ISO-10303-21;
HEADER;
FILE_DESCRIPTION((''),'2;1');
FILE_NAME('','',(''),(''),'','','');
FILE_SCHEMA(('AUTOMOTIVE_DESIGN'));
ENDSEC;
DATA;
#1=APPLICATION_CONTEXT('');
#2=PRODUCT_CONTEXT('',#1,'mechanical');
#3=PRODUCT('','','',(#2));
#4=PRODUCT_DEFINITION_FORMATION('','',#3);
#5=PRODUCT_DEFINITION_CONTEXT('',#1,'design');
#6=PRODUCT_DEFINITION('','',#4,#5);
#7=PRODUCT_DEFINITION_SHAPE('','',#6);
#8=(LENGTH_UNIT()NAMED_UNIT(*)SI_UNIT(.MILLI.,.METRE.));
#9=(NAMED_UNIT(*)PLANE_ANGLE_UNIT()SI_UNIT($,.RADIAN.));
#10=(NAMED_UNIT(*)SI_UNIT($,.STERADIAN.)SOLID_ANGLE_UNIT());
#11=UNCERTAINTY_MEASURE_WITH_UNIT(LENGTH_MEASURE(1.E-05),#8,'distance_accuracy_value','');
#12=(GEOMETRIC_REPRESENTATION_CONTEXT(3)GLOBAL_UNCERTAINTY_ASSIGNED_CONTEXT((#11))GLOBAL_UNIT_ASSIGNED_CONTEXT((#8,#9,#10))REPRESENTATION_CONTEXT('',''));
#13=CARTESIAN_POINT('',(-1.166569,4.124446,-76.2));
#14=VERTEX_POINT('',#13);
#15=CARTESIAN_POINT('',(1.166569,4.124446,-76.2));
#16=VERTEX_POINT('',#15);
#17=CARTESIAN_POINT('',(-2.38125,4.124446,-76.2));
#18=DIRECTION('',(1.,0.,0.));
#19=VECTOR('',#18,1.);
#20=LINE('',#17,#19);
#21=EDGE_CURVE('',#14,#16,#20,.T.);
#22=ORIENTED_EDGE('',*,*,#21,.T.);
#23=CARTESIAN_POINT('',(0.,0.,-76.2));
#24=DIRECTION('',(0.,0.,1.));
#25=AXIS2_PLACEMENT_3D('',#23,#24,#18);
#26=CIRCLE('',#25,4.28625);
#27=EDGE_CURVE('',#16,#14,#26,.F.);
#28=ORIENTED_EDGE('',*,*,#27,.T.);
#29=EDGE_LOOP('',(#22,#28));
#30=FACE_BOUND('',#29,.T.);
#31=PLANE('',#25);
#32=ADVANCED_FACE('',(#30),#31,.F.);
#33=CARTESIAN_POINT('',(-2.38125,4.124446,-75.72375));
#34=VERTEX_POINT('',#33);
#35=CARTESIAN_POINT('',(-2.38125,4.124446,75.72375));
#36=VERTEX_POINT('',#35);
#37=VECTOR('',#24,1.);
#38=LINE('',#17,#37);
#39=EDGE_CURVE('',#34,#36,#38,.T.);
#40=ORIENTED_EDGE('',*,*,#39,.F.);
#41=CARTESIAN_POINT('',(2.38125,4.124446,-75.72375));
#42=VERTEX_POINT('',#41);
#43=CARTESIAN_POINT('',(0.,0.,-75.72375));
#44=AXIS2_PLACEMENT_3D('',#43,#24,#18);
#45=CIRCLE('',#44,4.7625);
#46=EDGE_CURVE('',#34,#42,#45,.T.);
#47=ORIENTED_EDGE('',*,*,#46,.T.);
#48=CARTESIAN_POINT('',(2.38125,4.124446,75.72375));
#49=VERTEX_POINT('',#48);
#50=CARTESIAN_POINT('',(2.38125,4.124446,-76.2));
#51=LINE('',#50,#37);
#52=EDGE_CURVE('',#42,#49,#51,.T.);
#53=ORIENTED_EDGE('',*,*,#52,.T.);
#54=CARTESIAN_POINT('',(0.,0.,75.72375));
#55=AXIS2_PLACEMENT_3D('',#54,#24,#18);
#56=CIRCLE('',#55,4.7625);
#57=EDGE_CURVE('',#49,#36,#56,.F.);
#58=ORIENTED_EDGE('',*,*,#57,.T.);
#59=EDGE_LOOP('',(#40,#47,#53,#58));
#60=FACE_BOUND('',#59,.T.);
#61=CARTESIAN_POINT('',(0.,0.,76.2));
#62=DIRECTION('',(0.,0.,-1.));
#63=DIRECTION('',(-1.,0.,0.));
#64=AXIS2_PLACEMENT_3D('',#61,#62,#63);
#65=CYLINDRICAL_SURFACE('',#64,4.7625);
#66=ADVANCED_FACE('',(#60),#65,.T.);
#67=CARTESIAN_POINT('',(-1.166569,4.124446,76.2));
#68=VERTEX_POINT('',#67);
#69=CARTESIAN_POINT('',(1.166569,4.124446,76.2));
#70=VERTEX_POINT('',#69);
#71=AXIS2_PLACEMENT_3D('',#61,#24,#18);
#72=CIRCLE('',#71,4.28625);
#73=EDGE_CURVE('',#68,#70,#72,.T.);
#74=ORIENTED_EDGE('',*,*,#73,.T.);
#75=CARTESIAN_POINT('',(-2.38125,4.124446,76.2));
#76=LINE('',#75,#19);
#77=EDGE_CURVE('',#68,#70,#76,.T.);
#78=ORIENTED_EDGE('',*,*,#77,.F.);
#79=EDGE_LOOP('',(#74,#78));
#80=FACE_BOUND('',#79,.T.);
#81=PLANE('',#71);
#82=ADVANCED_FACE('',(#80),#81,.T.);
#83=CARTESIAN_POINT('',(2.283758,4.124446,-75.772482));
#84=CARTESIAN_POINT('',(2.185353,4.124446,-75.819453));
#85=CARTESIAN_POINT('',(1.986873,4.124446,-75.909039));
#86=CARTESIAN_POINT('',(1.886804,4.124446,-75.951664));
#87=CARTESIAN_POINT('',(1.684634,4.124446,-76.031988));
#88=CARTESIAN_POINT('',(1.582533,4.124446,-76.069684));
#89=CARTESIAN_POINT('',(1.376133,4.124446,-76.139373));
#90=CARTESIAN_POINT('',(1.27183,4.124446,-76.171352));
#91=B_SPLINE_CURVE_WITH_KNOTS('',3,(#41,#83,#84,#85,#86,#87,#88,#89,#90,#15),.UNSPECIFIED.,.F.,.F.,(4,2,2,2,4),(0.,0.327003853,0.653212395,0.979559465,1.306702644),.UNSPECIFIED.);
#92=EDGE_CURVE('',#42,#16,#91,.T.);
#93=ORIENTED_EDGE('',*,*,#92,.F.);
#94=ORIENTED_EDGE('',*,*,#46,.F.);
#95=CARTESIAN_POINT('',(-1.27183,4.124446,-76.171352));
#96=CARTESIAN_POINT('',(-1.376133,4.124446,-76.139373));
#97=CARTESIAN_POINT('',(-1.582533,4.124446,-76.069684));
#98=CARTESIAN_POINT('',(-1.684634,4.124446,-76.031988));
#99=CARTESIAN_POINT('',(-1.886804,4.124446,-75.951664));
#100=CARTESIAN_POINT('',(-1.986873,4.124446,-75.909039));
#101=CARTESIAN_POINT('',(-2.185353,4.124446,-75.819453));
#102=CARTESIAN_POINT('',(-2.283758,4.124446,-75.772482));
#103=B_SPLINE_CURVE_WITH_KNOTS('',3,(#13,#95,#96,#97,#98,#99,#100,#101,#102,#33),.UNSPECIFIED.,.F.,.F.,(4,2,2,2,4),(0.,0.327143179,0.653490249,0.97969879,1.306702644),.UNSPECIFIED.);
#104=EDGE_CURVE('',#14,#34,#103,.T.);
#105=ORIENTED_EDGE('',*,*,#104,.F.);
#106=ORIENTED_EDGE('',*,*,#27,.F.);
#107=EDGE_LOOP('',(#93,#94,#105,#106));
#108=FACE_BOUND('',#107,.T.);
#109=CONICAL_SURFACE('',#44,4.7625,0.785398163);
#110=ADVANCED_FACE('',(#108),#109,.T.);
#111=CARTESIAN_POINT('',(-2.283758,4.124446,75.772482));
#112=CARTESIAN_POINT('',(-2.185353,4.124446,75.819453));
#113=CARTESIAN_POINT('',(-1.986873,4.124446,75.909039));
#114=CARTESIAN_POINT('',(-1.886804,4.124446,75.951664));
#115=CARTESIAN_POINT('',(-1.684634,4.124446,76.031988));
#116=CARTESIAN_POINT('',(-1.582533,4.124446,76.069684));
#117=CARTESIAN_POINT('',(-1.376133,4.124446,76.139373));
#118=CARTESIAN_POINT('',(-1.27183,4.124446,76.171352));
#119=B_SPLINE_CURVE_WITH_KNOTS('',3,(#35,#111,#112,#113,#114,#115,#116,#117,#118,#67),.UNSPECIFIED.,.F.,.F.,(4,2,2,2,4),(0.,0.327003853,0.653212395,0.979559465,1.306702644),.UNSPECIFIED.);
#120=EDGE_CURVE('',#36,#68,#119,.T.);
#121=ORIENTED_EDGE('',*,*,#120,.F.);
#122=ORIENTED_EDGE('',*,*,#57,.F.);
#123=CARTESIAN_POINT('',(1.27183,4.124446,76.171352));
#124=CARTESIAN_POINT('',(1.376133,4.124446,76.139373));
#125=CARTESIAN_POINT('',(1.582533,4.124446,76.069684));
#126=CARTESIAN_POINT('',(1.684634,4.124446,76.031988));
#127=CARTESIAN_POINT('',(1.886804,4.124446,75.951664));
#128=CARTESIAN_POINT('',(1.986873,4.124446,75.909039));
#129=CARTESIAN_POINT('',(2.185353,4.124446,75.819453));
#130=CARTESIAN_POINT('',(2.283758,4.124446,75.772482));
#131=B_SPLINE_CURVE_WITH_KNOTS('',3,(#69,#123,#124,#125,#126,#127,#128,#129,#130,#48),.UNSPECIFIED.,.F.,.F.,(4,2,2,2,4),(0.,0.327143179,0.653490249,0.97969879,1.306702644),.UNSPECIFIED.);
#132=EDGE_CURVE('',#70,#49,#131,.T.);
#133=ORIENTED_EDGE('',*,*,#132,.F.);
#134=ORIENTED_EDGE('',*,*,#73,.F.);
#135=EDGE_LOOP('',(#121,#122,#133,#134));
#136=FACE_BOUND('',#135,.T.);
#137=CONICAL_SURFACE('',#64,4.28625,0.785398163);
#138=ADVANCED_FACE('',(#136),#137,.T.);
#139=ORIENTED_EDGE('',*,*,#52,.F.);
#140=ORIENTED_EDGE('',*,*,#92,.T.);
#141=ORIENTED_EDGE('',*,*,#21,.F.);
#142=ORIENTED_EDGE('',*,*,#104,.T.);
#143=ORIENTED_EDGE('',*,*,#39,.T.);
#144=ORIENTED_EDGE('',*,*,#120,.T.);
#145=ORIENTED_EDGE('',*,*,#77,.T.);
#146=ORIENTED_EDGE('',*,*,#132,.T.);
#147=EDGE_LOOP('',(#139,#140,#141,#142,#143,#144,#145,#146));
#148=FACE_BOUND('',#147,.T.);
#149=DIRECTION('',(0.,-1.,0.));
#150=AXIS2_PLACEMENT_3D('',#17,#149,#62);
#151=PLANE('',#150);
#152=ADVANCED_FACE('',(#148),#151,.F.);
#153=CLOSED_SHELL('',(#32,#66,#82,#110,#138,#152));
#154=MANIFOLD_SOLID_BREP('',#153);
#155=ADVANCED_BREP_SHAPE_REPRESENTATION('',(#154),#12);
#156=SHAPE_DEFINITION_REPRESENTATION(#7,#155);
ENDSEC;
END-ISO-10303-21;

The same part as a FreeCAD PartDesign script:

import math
import FreeCAD as App
import Part
import Sketcher
Q = App.Units.Quantity


def edges_at(feature, points):
    """Names of the edges that pass closest to the given points."""
    edges = feature.Shape.Edges
    near = lambda p: min(range(len(edges)), key=lambda i: edges[i].distToShape(Part.Vertex(*p))[0])
    return sorted({f"Edge{near(p) + 1}" for p in points})

doc = App.newDocument("Part")
body = doc.addObject("PartDesign::Body", "Body")

sketch1 = body.newObject("Sketcher::SketchObject", "Sketch")
sketch1.AttachmentSupport = (doc.getObject("XY_Plane"), [""])
sketch1.MapMode = "FlatFace"
sketch1.addGeometry(Part.Circle(App.Vector(0, 0, 0), App.Vector(0, 0, 1), 4.8), False)
sketch1.addConstraint([
    Sketcher.Constraint("Coincident", 0, 3, -1, 1),
    Sketcher.Constraint("Diameter", 0, Q("0.375 in")),
])
pad1 = body.newObject("PartDesign::Pad", "Pad")
pad1.Profile = sketch1
pad1.Type = "TwoLengths"
pad1.Length = Q("3 in")
pad1.Length2 = Q("3 in")

sketch2 = body.newObject("Sketcher::SketchObject", "Sketch001")
sketch2.AttachmentSupport = (doc.getObject("XY_Plane"), [""])
sketch2.MapMode = "FlatFace"
sketch2.addGeometry([
    Part.LineSegment(App.Vector(-2.4, 4.1, 0), App.Vector(2.4, 4.1, 0)),
    Part.ArcOfCircle(Part.Circle(App.Vector(0, 0, 0), App.Vector(0, 0, 1), 4.8), math.radians(60), math.radians(120)),
], False)
sketch2.addConstraint([
    Sketcher.Constraint("Coincident", 0, 1, 1, 2),
    Sketcher.Constraint("Coincident", 1, 1, 0, 2),
    Sketcher.Constraint("Horizontal", 0),
    Sketcher.Constraint("Coincident", 1, 3, -1, 1),
    Sketcher.Constraint("Radius", 1, Q("0.1875 in")),
    Sketcher.Constraint("DistanceX", 0, 1, 0, 2, Q("0.1875 in")),
])
pocket1 = body.newObject("PartDesign::Pocket", "Pocket")
pocket1.Profile = sketch2
pocket1.Type = "ThroughAll"
pocket1.Midplane = True
doc.recompute()

chamfer = body.newObject("PartDesign::Chamfer", "Chamfer")
chamfer.Base = (pocket1, edges_at(pocket1, [(0, -4.763, -76.2), (0, -4.763, 76.2)]))
chamfer.Size = 0.47625

doc.recompute()
